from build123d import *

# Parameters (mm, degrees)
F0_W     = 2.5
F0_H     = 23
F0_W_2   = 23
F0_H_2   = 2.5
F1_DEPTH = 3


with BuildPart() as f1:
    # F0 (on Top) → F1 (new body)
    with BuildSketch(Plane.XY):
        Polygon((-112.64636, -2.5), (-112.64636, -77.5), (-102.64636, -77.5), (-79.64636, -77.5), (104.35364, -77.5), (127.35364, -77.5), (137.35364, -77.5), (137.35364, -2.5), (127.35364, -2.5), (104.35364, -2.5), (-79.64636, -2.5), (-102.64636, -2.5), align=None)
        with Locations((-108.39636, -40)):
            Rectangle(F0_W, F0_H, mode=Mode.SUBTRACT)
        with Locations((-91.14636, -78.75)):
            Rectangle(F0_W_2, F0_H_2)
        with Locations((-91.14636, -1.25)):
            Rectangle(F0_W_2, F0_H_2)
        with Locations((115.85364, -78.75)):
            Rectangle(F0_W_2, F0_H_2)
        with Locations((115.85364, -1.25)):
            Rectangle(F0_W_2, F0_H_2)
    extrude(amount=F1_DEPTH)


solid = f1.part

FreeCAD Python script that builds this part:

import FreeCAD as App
import Part
import Sketcher
from FreeCAD import Vector
Q = App.Units.Quantity


def add_polygon(sketch, points):
    """Adds a closed chain of lines whose ends are joined by coincident constraints."""
    first, n = sketch.GeometryCount, len(points)
    for a, b in zip(points, points[1:] + points[:1]):
        sketch.addGeometry(Part.LineSegment(App.Vector(*a, 0), App.Vector(*b, 0)), False)
    for i in range(n):
        sketch.addConstraint(Sketcher.Constraint("Coincident", first + i, 2, first + (i + 1) % n, 1))

doc = App.newDocument("Part")
params = doc.addObject("Spreadsheet::Sheet", "Params")
for row, (alias, value) in enumerate([
    ("sketch1_width", "10 mm"),
    ("sketch1_width2", "23 mm"),
    ("sketch1_width3", "184 mm"),
    ("sketch1_height", "75 mm"),
    ("sketch1_width4", "2.5 mm"),
    ("pad1_length", "3 mm"),
], start=1):
    params.set(f"A{row}", alias)
    params.set(f"B{row}", "=" + value)
    params.setAlias(f"B{row}", alias)

body = doc.addObject("PartDesign::Body", "Body")

sketch1 = body.newObject("Sketcher::SketchObject", "Sketch")
sketch1.AttachmentSupport = (doc.getObject("XY_Plane"), [""])
sketch1.MapMode = "FlatFace"
add_polygon(sketch1, [(-112.6, -2.5), (-112.6, -77.5), (-102.6, -77.5), (-102.6, -80), (-79.6, -80), (-79.6, -77.5), (104.4, -77.5), (104.4, -80), (127.4, -80), (127.4, -77.5), (137.4, -77.5), (137.4, -2.5), (127.4, -2.5), (127.4, 0), (104.4, 0), (104.4, -2.5), (-79.6, -2.5), (-79.6, 0), (-102.6, 0), (-102.6, -2.5)])
add_polygon(sketch1, [(-107.1, -51.5), (-109.6, -51.5), (-109.6, -28.5), (-107.1, -28.5)])
sketch1.addConstraint(Sketcher.Constraint("Vertical", 0))
sketch1.addConstraint(Sketcher.Constraint("Horizontal", 1))
sketch1.addConstraint(Sketcher.Constraint("Vertical", 2))
sketch1.addConstraint(Sketcher.Constraint("Horizontal", 3))
sketch1.addConstraint(Sketcher.Constraint("Vertical", 4))
sketch1.addConstraint(Sketcher.Constraint("Horizontal", 5))
sketch1.addConstraint(Sketcher.Constraint("Vertical", 6))
sketch1.addConstraint(Sketcher.Constraint("Horizontal", 7))
sketch1.addConstraint(Sketcher.Constraint("Vertical", 8))
sketch1.addConstraint(Sketcher.Constraint("Horizontal", 9))
sketch1.addConstraint(Sketcher.Constraint("Vertical", 10))
sketch1.addConstraint(Sketcher.Constraint("Horizontal", 11))
sketch1.addConstraint(Sketcher.Constraint("Vertical", 12))
sketch1.addConstraint(Sketcher.Constraint("Horizontal", 13))
sketch1.addConstraint(Sketcher.Constraint("Vertical", 14))
sketch1.addConstraint(Sketcher.Constraint("Horizontal", 15))
sketch1.addConstraint(Sketcher.Constraint("Vertical", 16))
sketch1.addConstraint(Sketcher.Constraint("Horizontal", 17))
sketch1.addConstraint(Sketcher.Constraint("Vertical", 18))
sketch1.addConstraint(Sketcher.Constraint("Horizontal", 19))
sketch1.addConstraint(Sketcher.Constraint("Horizontal", 20))
sketch1.addConstraint(Sketcher.Constraint("Vertical", 21))
sketch1.addConstraint(Sketcher.Constraint("Horizontal", 22))
sketch1.addConstraint(Sketcher.Constraint("Vertical", 23))
sketch1.addConstraint(Sketcher.Constraint("PointOnObject", 12, 2, -1))
sketch1.addConstraint(Sketcher.Constraint("PointOnObject", 16, 2, -1))
sketch1.addConstraint(Sketcher.Constraint("Horizontal", 1, 2, 4, 2))
sketch1.addConstraint(Sketcher.Constraint("Horizontal", 3, 2, 6, 2))
sketch1.addConstraint(Sketcher.Constraint("Horizontal", 5, 2, 8, 2))
sketch1.addConstraint(Sketcher.Constraint("Horizontal", 11, 2, 14, 2))
sketch1.addConstraint(Sketcher.Constraint("Horizontal", 15, 2, 18, 2))
sketch1.addConstraint(Sketcher.Constraint("Vertical", 8, 2, 11, 2))
sketch1.addConstraint(Sketcher.Constraint("Vertical", 6, 2, 13, 2))
sketch1.addConstraint(Sketcher.Constraint("Vertical", 4, 2, 15, 2))
sketch1.addConstraint(Sketcher.Constraint("Vertical", 2, 2, 17, 2))
sketch1.addConstraint(Sketcher.Constraint("Equal", 3, 7))
sketch1.addConstraint(Sketcher.Constraint("Equal", 1, 9))
sketch1.addConstraint(Sketcher.Constraint("Equal", 22, 2))
sketch1.addConstraint(Sketcher.Constraint("Equal", 8, 12))
sketch1.addConstraint(Sketcher.Constraint("Equal", 17, 21))
sketch1.addConstraint(Sketcher.Constraint("DistanceX", 1, 1, 1, 2, Q("10 mm")))
sketch1.addConstraint(Sketcher.Constraint("DistanceX", 3, 1, 3, 2, Q("23 mm")))
sketch1.addConstraint(Sketcher.Constraint("DistanceX", 5, 1, 5, 2, Q("184 mm")))
sketch1.addConstraint(Sketcher.Constraint("DistanceY", 0, 2, 0, 1, Q("75 mm")))
sketch1.addConstraint(Sketcher.Constraint("DistanceX", 20, 2, 20, 1, Q("2.5 mm")))
sketch1.addConstraint(Sketcher.Constraint("DistanceX", 0, 2, 20, 2, Q("3 mm")))
sketch1.addConstraint(Sketcher.Constraint("DistanceY", 0, 2, 20, 2, Q("26 mm")))
sketch1.addConstraint(Sketcher.Constraint("DistanceX", 0, 2, -1, 1, Q("112.64636 mm")))
sketch1.setExpression("Constraints[64]", "Params.sketch1_width")
sketch1.setExpression("Constraints[65]", "Params.sketch1_width2")
sketch1.setExpression("Constraints[66]", "Params.sketch1_width3")
sketch1.setExpression("Constraints[67]", "Params.sketch1_height")
sketch1.setExpression("Constraints[68]", "Params.sketch1_width4")
pad1 = body.newObject("PartDesign::Pad", "Pad")
pad1.Profile = sketch1
pad1.setExpression("Length", "Params.pad1_length")

doc.recompute()
